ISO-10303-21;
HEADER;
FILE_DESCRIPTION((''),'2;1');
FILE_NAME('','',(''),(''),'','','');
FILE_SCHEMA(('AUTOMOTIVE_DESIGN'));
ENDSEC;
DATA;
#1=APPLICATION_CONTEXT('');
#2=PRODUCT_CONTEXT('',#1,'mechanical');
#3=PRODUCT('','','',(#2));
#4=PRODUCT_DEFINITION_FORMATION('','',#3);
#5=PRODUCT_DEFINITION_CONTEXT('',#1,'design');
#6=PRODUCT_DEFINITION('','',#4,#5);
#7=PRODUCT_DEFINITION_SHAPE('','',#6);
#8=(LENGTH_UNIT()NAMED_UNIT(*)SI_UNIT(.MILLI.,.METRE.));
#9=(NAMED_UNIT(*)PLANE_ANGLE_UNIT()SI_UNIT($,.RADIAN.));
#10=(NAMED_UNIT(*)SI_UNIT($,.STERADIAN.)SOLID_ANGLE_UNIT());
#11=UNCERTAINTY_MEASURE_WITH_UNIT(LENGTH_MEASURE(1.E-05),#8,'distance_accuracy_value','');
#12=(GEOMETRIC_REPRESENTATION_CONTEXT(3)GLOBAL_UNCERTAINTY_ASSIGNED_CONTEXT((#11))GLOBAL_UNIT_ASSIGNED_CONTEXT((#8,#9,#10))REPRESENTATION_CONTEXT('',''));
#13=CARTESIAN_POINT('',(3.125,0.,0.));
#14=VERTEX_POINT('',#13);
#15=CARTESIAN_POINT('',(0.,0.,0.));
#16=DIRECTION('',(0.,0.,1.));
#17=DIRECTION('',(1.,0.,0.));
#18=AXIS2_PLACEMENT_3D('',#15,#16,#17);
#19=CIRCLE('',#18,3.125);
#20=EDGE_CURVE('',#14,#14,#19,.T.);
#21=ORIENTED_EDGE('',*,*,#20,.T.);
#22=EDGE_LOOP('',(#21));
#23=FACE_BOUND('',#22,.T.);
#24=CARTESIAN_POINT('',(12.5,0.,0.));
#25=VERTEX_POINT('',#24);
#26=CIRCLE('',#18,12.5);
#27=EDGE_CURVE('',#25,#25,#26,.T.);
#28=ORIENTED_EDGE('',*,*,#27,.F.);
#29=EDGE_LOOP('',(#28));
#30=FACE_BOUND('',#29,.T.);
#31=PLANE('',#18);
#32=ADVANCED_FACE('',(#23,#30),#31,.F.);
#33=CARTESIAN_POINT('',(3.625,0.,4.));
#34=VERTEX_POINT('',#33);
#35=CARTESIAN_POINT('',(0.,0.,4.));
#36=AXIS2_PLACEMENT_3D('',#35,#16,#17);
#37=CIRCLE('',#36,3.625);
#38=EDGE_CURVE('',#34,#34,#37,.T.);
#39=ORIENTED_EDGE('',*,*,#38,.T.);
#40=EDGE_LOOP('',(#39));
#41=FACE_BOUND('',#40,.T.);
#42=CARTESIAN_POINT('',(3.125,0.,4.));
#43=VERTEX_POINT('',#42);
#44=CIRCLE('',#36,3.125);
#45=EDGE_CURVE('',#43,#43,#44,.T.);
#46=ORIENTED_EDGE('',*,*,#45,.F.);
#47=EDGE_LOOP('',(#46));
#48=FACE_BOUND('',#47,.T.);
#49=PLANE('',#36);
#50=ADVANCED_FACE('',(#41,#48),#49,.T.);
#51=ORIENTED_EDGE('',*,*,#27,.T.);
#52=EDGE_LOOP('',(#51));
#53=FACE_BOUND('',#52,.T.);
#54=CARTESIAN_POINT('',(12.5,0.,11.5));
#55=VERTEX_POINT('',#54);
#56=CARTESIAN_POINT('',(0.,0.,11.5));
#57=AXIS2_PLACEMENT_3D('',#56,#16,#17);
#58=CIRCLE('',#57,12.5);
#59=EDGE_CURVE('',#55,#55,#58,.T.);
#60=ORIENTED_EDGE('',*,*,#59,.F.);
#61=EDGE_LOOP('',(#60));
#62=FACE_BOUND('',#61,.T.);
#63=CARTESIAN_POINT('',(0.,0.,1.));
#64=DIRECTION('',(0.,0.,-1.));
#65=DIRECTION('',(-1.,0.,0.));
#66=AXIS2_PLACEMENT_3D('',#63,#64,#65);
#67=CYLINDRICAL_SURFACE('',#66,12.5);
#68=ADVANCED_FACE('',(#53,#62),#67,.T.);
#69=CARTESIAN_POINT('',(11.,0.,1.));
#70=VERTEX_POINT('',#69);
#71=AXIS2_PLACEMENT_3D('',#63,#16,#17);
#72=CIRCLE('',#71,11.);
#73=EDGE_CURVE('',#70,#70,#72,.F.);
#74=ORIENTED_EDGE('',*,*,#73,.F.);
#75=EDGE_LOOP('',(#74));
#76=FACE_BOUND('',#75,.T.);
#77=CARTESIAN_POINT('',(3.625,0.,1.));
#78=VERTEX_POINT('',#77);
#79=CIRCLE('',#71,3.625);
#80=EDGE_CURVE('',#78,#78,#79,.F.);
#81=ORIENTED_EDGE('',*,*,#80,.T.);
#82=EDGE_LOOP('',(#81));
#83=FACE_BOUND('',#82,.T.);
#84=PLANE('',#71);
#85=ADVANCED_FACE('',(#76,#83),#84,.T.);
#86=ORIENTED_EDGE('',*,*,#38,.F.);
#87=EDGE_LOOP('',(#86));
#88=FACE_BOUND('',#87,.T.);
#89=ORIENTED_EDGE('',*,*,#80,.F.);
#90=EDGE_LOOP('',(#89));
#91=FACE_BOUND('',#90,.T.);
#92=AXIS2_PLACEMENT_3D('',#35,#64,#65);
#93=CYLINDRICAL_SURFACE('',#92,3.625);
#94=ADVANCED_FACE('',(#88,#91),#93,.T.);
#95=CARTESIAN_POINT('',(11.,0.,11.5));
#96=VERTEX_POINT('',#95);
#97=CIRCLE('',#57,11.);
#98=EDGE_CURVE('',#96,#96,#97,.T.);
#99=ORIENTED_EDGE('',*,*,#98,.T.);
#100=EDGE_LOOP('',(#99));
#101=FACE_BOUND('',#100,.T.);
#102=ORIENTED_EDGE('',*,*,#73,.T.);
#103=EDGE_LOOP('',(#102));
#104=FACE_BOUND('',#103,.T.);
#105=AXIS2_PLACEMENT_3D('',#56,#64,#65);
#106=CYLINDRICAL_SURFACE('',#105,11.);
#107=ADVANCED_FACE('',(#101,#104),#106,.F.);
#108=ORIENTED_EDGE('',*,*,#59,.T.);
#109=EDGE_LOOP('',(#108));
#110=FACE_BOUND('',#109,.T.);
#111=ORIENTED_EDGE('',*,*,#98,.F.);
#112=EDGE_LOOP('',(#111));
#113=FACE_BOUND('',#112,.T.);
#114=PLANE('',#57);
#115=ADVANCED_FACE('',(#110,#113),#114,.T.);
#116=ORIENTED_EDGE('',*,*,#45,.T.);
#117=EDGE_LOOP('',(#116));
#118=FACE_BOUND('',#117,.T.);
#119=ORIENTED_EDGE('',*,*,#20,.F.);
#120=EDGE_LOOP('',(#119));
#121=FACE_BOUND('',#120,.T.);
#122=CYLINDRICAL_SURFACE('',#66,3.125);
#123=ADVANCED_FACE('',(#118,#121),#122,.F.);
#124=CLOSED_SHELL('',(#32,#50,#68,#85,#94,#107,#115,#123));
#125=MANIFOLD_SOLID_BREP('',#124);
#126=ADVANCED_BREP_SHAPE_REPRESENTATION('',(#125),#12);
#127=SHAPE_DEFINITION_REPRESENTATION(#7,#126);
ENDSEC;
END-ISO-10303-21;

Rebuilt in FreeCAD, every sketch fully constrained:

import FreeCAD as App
import Part
import Sketcher

V = App.Vector
Q = App.Units.Quantity

doc = App.newDocument("Part")
body = doc.addObject("PartDesign::Body", "Body")

# Sketch on XY plane
sketch1 = doc.addObject("Sketcher::SketchObject", "Sketch")
body.addObject(sketch1)
sketch1.AttachmentSupport = (doc.XY_Plane, [""])
sketch1.MapMode = "FlatFace"
sketch1.addGeometry([
    Part.Circle(V(0, 0, 0), V(0, 0, 1), 12.5),
    Part.Circle(V(0, 0, 0), V(0, 0, 1), 3.1),
], False)
sketch1.addConstraint([
    Sketcher.Constraint("Coincident", 0, 3, -1, 1),
    Sketcher.Constraint("Coincident", 1, 3, -1, 1),
    Sketcher.Constraint("Diameter", 0, Q("25 mm")),
    Sketcher.Constraint("Diameter", 1, Q("6.25 mm")),
])
pad1 = doc.addObject("PartDesign::Pad", "Pad")
body.addObject(pad1)
pad1.Profile = sketch1
pad1.Length = 1

# Sketch on XY plane
sketch2 = doc.addObject("Sketcher::SketchObject", "Sketch001")
body.addObject(sketch2)
sketch2.AttachmentSupport = (doc.XY_Plane, [""])
sketch2.MapMode = "FlatFace"
sketch2.addGeometry([
    Part.Circle(V(0, 0, 0), V(0, 0, 1), 3.6),
    Part.Circle(V(0, 0, 0), V(0, 0, 1), 3.1),
], False)
sketch2.addConstraint([
    Sketcher.Constraint("Coincident", 0, 3, -1, 1),
    Sketcher.Constraint("Coincident", 1, 3, -1, 1),
    Sketcher.Constraint("Diameter", 0, Q("7.25 mm")),
    Sketcher.Constraint("Diameter", 1, Q("6.25 mm")),
])
pad2 = doc.addObject("PartDesign::Pad", "Pad001")
body.addObject(pad2)
pad2.Profile = sketch2
pad2.Length = 4

# Sketch on XY plane
sketch3 = doc.addObject("Sketcher::SketchObject", "Sketch002")
body.addObject(sketch3)
sketch3.AttachmentSupport = (doc.XY_Plane, [""])
sketch3.MapMode = "FlatFace"
sketch3.addGeometry([
    Part.Circle(V(0, 0, 0), V(0, 0, 1), 12),
    Part.Circle(V(0, 0, 0), V(0, 0, 1), 11),
], False)
sketch3.addConstraint([
    Sketcher.Constraint("Coincident", 0, 3, -1, 1),
    Sketcher.Constraint("Coincident", 1, 3, -1, 1),
    Sketcher.Constraint("Diameter", 0, Q("25 mm")),
    Sketcher.Constraint("Diameter", 1, Q("22 mm")),
])
pad3 = doc.addObject("PartDesign::Pad", "Pad002")
body.addObject(pad3)
pad3.Profile = sketch3
pad3.Length = 11.5

doc.recompute()
